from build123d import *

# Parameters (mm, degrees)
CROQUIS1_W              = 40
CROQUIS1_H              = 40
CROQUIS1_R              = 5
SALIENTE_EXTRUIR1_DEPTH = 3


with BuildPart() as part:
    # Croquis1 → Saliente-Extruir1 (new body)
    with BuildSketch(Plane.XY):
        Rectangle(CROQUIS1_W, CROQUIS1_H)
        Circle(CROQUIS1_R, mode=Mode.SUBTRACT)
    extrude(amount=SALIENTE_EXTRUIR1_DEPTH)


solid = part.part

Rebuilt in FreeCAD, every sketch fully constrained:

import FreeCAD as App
import Part
import Sketcher
Q = App.Units.Quantity

doc = App.newDocument("Part")
body = doc.addObject("PartDesign::Body", "Body")

# Sketch on XY plane
sketch1 = body.newObject("Sketcher::SketchObject", "Sketch")
sketch1.AttachmentSupport = (doc.getObject("XY_Plane"), [""])
sketch1.MapMode = "FlatFace"
sketch1.addGeometry([
    Part.LineSegment(App.Vector(-20, 20, 0), App.Vector(-20, -20, 0)),  # 0
    Part.LineSegment(App.Vector(-20, -20, 0), App.Vector(20, -20, 0)),  # 1
    Part.LineSegment(App.Vector(20, -20, 0), App.Vector(20, 20, 0)),  # 2
    Part.LineSegment(App.Vector(20, 20, 0), App.Vector(-20, 20, 0)),  # 3
    Part.Circle(App.Vector(0, 0, 0), App.Vector(0, 0, 1), 5),  # 4
], False)
sketch1.addConstraint([
    Sketcher.Constraint("Coincident", 0, 2, 1, 1),
    Sketcher.Constraint("Coincident", 1, 2, 2, 1),
    Sketcher.Constraint("Coincident", 2, 2, 3, 1),
    Sketcher.Constraint("Coincident", 3, 2, 0, 1),
    Sketcher.Constraint("Vertical", 0),
    Sketcher.Constraint("Horizontal", 1),
    Sketcher.Constraint("Vertical", 2),
    Sketcher.Constraint("Horizontal", 3),
    Sketcher.Constraint("Coincident", 4, 3, -1, 1),
    Sketcher.Constraint("Symmetric", 0, 2, 2, 2, -1, 1),
    Sketcher.Constraint("Equal", 3, 0),
    Sketcher.Constraint("Diameter", 4, Q("10 mm")),
    Sketcher.Constraint("DistanceX", 1, 1, 1, 2, Q("40 mm")),
])
pad1 = body.newObject("PartDesign::Pad", "Pad")
pad1.Profile = sketch1
pad1.Length = 3

doc.recompute()
